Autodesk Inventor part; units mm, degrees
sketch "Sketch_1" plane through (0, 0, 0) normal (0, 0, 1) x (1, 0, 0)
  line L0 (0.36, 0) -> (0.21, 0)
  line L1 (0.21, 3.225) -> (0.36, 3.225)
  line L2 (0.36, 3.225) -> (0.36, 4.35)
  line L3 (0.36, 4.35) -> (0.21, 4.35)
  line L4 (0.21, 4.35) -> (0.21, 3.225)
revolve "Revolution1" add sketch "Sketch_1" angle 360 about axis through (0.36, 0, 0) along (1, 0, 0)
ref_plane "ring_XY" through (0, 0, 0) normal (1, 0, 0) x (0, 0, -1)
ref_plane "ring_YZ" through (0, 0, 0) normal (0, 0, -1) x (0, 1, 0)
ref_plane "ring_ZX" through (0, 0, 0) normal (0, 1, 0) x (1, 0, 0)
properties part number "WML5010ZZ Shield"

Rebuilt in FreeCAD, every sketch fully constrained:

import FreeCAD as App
import Part
import Sketcher
Q = App.Units.Quantity


def add_polygon(sketch, points):
    """Adds a closed chain of lines whose ends are joined by coincident constraints."""
    first, n = sketch.GeometryCount, len(points)
    for a, b in zip(points, points[1:] + points[:1]):
        sketch.addGeometry(Part.LineSegment(App.Vector(*a, 0), App.Vector(*b, 0)), False)
    for i in range(n):
        sketch.addConstraint(Sketcher.Constraint("Coincident", first + i, 2, first + (i + 1) % n, 1))

doc = App.newDocument("Part")
body = doc.addObject("PartDesign::Body", "Body")

# Sketch on XY plane
sketch1 = body.newObject("Sketcher::SketchObject", "Sketch")
sketch1.AttachmentSupport = (doc.getObject("XY_Plane"), [""])
sketch1.MapMode = "FlatFace"
add_polygon(sketch1, [(0.21, 4.35), (0.21, 3.23), (0.36, 3.23), (0.36, 4.35)])  # lines 0-3
sketch1.addConstraint([
    Sketcher.Constraint("Vertical", 0),
    Sketcher.Constraint("Horizontal", 1),
    Sketcher.Constraint("Vertical", 2),
    Sketcher.Constraint("Horizontal", 3),
    Sketcher.Constraint("DistanceX", 1, 1, 1, 2, Q("0.15 mm")),
    Sketcher.Constraint("DistanceY", 0, 2, 0, 1, Q("1.125 mm")),
    Sketcher.Constraint("DistanceX", -1, 1, 0, 2, Q("0.21 mm")),
    Sketcher.Constraint("DistanceY", -1, 1, 2, 2, Q("4.35 mm")),
])
revolution = body.newObject("PartDesign::Revolution", "Revolution")
revolution.Profile = sketch1
revolution.ReferenceAxis = (sketch1, ["H_Axis"])
revolution.Angle = 360

doc.recompute()
